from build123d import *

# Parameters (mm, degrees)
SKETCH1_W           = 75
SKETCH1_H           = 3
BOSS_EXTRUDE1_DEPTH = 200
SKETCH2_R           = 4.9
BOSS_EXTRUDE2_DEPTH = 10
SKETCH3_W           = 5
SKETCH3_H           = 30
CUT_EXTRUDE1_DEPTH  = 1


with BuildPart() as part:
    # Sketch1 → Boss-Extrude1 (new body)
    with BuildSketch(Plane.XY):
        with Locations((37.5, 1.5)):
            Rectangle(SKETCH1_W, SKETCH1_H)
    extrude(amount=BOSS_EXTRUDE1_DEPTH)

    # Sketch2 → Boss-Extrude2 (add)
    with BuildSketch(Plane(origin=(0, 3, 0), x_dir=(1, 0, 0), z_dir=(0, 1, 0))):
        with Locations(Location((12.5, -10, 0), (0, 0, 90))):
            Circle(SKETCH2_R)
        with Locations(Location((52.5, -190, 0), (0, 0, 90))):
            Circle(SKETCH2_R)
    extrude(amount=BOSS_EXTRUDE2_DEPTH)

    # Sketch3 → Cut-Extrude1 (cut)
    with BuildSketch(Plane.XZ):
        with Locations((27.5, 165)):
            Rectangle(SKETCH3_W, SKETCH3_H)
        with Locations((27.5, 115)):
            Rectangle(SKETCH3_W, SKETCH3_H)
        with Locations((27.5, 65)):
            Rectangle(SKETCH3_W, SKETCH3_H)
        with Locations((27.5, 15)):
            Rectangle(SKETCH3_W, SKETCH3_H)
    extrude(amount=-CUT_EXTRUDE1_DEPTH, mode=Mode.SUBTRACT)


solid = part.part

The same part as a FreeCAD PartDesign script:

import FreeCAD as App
import Part
import Sketcher
Q = App.Units.Quantity


def add_polygon(sketch, points):
    """Adds a closed chain of lines whose ends are joined by coincident constraints."""
    first, n = sketch.GeometryCount, len(points)
    for a, b in zip(points, points[1:] + points[:1]):
        sketch.addGeometry(Part.LineSegment(App.Vector(*a, 0), App.Vector(*b, 0)), False)
    for i in range(n):
        sketch.addConstraint(Sketcher.Constraint("Coincident", first + i, 2, first + (i + 1) % n, 1))

doc = App.newDocument("Part")
params = doc.addObject("Spreadsheet::Sheet", "Params")
for row, (alias, value) in enumerate([
    ("sketch1_width", "75 mm"),
    ("sketch1_height", "3 mm"),
    ("pad1_length", "200 mm"),
    ("sketch2_diameter", "9.8 mm"),
    ("pad2_length", "10 mm"),
    ("sketch3_width", "5 mm"),
    ("sketch3_height", "30 mm"),
    ("pocket1_length", "1 mm"),
], start=1):
    params.set(f"A{row}", alias)
    params.set(f"B{row}", "=" + value)
    params.setAlias(f"B{row}", alias)

body = doc.addObject("PartDesign::Body", "Body")

# Sketch on XY plane
sketch1 = body.newObject("Sketcher::SketchObject", "Sketch")
sketch1.AttachmentSupport = (doc.getObject("XY_Plane"), [""])
sketch1.MapMode = "FlatFace"
add_polygon(sketch1, [(0, 3), (0, 0), (75, 0), (75, 3)])  # lines 0-3
sketch1.addConstraint([
    Sketcher.Constraint("Vertical", 0),
    Sketcher.Constraint("Horizontal", 1),
    Sketcher.Constraint("Vertical", 2),
    Sketcher.Constraint("Horizontal", 3),
    Sketcher.Constraint("Coincident", 0, 2, -1, 1),
    Sketcher.Constraint("DistanceX", 1, 1, 1, 2, Q("75 mm")),
    Sketcher.Constraint("DistanceY", 0, 2, 0, 1, Q("3 mm")),
])
sketch1.setExpression("Constraints[9]", "Params.sketch1_width")
sketch1.setExpression("Constraints[10]", "Params.sketch1_height")
pad1 = body.newObject("PartDesign::Pad", "Pad")
pad1.Profile = sketch1
pad1.setExpression("Length", "Params.pad1_length")

# Sketch on XZ plane
sketch2 = body.newObject("Sketcher::SketchObject", "Sketch001")
sketch2.AttachmentSupport = (doc.getObject("XZ_Plane"), [""])
sketch2.MapMode = "FlatFace"
sketch2.AttachmentOffset = App.Placement(App.Vector(0, 0, -3), App.Rotation())
sketch2.addGeometry([
    Part.Circle(App.Vector(12.5, 10, 0), App.Vector(0, 0, 1), 4.9),
    Part.Circle(App.Vector(52.5, 190, 0), App.Vector(0, 0, 1), 4.9),
], False)
sketch2.addConstraint([
    Sketcher.Constraint("Equal", 0, 1),
    Sketcher.Constraint("Diameter", 0, Q("9.8 mm")),
    Sketcher.Constraint("DistanceY", -1, 1, 0, 3, Q("10 mm")),
    Sketcher.Constraint("DistanceY", -1, 1, 1, 3, Q("190 mm")),
    Sketcher.Constraint("DistanceX", 0, 3, 1, 3, Q("40 mm")),
    Sketcher.Constraint("DistanceX", -1, 1, 0, 3, Q("12.5 mm")),
])
sketch2.setExpression("Constraints[1]", "Params.sketch2_diameter")
pad2 = body.newObject("PartDesign::Pad", "Pad001")
pad2.Profile = sketch2
pad2.setExpression("Length", "Params.pad2_length")
pad2.Reversed = True

# Sketch on XZ plane
sketch3 = body.newObject("Sketcher::SketchObject", "Sketch002")
sketch3.AttachmentSupport = (doc.getObject("XZ_Plane"), [""])
sketch3.MapMode = "FlatFace"
add_polygon(sketch3, [(25, 180), (25, 150), (30, 150), (30, 180)])  # lines 0-3
add_polygon(sketch3, [(25, 130), (25, 100), (30, 100), (30, 130)])  # lines 4-7
add_polygon(sketch3, [(25, 80), (25, 50), (30, 50), (30, 80)])  # lines 8-11
add_polygon(sketch3, [(25, 30), (25, 0), (30, 0), (30, 30)])  # lines 12-15
sketch3.addConstraint([
    Sketcher.Constraint("Vertical", 0),
    Sketcher.Constraint("Horizontal", 1),
    Sketcher.Constraint("Vertical", 2),
    Sketcher.Constraint("Horizontal", 3),
    Sketcher.Constraint("Vertical", 4),
    Sketcher.Constraint("Horizontal", 5),
    Sketcher.Constraint("Vertical", 6),
    Sketcher.Constraint("Horizontal", 7),
    Sketcher.Constraint("Vertical", 8),
    Sketcher.Constraint("Horizontal", 9),
    Sketcher.Constraint("Vertical", 10),
    Sketcher.Constraint("Horizontal", 11),
    Sketcher.Constraint("Vertical", 12),
    Sketcher.Constraint("Horizontal", 13),
    Sketcher.Constraint("Vertical", 14),
    Sketcher.Constraint("Horizontal", 15),
    Sketcher.Constraint("PointOnObject", 12, 2, -1),
    Sketcher.Constraint("Vertical", 3, 2, 4, 2),
    Sketcher.Constraint("Vertical", 2, 2, 5, 2),
    Sketcher.Constraint("Vertical", 7, 2, 8, 2),
    Sketcher.Constraint("Vertical", 6, 2, 9, 2),
    Sketcher.Constraint("Vertical", 11, 2, 12, 2),
    Sketcher.Constraint("Vertical", 10, 2, 13, 2),
    Sketcher.Constraint("Equal", 2, 4),
    Sketcher.Constraint("Equal", 6, 8),
    Sketcher.Constraint("Equal", 10, 12),
    Sketcher.Constraint("DistanceX", 1, 1, 1, 2, Q("5 mm")),
    Sketcher.Constraint("DistanceY", 0, 2, 0, 1, Q("30 mm")),
    Sketcher.Constraint("DistanceX", -1, 1, 0, 2, Q("25 mm")),
    Sketcher.Constraint("DistanceY", -1, 1, 0, 2, Q("150 mm")),
    Sketcher.Constraint("DistanceY", -1, 1, 4, 2, Q("100 mm")),
    Sketcher.Constraint("DistanceY", -1, 1, 8, 2, Q("50 mm")),
])
sketch3.setExpression("Constraints[42]", "Params.sketch3_width")
sketch3.setExpression("Constraints[43]", "Params.sketch3_height")
pocket1 = body.newObject("PartDesign::Pocket", "Pocket")
pocket1.Profile = sketch3
pocket1.setExpression("Length", "Params.pocket1_length")

doc.recompute()
